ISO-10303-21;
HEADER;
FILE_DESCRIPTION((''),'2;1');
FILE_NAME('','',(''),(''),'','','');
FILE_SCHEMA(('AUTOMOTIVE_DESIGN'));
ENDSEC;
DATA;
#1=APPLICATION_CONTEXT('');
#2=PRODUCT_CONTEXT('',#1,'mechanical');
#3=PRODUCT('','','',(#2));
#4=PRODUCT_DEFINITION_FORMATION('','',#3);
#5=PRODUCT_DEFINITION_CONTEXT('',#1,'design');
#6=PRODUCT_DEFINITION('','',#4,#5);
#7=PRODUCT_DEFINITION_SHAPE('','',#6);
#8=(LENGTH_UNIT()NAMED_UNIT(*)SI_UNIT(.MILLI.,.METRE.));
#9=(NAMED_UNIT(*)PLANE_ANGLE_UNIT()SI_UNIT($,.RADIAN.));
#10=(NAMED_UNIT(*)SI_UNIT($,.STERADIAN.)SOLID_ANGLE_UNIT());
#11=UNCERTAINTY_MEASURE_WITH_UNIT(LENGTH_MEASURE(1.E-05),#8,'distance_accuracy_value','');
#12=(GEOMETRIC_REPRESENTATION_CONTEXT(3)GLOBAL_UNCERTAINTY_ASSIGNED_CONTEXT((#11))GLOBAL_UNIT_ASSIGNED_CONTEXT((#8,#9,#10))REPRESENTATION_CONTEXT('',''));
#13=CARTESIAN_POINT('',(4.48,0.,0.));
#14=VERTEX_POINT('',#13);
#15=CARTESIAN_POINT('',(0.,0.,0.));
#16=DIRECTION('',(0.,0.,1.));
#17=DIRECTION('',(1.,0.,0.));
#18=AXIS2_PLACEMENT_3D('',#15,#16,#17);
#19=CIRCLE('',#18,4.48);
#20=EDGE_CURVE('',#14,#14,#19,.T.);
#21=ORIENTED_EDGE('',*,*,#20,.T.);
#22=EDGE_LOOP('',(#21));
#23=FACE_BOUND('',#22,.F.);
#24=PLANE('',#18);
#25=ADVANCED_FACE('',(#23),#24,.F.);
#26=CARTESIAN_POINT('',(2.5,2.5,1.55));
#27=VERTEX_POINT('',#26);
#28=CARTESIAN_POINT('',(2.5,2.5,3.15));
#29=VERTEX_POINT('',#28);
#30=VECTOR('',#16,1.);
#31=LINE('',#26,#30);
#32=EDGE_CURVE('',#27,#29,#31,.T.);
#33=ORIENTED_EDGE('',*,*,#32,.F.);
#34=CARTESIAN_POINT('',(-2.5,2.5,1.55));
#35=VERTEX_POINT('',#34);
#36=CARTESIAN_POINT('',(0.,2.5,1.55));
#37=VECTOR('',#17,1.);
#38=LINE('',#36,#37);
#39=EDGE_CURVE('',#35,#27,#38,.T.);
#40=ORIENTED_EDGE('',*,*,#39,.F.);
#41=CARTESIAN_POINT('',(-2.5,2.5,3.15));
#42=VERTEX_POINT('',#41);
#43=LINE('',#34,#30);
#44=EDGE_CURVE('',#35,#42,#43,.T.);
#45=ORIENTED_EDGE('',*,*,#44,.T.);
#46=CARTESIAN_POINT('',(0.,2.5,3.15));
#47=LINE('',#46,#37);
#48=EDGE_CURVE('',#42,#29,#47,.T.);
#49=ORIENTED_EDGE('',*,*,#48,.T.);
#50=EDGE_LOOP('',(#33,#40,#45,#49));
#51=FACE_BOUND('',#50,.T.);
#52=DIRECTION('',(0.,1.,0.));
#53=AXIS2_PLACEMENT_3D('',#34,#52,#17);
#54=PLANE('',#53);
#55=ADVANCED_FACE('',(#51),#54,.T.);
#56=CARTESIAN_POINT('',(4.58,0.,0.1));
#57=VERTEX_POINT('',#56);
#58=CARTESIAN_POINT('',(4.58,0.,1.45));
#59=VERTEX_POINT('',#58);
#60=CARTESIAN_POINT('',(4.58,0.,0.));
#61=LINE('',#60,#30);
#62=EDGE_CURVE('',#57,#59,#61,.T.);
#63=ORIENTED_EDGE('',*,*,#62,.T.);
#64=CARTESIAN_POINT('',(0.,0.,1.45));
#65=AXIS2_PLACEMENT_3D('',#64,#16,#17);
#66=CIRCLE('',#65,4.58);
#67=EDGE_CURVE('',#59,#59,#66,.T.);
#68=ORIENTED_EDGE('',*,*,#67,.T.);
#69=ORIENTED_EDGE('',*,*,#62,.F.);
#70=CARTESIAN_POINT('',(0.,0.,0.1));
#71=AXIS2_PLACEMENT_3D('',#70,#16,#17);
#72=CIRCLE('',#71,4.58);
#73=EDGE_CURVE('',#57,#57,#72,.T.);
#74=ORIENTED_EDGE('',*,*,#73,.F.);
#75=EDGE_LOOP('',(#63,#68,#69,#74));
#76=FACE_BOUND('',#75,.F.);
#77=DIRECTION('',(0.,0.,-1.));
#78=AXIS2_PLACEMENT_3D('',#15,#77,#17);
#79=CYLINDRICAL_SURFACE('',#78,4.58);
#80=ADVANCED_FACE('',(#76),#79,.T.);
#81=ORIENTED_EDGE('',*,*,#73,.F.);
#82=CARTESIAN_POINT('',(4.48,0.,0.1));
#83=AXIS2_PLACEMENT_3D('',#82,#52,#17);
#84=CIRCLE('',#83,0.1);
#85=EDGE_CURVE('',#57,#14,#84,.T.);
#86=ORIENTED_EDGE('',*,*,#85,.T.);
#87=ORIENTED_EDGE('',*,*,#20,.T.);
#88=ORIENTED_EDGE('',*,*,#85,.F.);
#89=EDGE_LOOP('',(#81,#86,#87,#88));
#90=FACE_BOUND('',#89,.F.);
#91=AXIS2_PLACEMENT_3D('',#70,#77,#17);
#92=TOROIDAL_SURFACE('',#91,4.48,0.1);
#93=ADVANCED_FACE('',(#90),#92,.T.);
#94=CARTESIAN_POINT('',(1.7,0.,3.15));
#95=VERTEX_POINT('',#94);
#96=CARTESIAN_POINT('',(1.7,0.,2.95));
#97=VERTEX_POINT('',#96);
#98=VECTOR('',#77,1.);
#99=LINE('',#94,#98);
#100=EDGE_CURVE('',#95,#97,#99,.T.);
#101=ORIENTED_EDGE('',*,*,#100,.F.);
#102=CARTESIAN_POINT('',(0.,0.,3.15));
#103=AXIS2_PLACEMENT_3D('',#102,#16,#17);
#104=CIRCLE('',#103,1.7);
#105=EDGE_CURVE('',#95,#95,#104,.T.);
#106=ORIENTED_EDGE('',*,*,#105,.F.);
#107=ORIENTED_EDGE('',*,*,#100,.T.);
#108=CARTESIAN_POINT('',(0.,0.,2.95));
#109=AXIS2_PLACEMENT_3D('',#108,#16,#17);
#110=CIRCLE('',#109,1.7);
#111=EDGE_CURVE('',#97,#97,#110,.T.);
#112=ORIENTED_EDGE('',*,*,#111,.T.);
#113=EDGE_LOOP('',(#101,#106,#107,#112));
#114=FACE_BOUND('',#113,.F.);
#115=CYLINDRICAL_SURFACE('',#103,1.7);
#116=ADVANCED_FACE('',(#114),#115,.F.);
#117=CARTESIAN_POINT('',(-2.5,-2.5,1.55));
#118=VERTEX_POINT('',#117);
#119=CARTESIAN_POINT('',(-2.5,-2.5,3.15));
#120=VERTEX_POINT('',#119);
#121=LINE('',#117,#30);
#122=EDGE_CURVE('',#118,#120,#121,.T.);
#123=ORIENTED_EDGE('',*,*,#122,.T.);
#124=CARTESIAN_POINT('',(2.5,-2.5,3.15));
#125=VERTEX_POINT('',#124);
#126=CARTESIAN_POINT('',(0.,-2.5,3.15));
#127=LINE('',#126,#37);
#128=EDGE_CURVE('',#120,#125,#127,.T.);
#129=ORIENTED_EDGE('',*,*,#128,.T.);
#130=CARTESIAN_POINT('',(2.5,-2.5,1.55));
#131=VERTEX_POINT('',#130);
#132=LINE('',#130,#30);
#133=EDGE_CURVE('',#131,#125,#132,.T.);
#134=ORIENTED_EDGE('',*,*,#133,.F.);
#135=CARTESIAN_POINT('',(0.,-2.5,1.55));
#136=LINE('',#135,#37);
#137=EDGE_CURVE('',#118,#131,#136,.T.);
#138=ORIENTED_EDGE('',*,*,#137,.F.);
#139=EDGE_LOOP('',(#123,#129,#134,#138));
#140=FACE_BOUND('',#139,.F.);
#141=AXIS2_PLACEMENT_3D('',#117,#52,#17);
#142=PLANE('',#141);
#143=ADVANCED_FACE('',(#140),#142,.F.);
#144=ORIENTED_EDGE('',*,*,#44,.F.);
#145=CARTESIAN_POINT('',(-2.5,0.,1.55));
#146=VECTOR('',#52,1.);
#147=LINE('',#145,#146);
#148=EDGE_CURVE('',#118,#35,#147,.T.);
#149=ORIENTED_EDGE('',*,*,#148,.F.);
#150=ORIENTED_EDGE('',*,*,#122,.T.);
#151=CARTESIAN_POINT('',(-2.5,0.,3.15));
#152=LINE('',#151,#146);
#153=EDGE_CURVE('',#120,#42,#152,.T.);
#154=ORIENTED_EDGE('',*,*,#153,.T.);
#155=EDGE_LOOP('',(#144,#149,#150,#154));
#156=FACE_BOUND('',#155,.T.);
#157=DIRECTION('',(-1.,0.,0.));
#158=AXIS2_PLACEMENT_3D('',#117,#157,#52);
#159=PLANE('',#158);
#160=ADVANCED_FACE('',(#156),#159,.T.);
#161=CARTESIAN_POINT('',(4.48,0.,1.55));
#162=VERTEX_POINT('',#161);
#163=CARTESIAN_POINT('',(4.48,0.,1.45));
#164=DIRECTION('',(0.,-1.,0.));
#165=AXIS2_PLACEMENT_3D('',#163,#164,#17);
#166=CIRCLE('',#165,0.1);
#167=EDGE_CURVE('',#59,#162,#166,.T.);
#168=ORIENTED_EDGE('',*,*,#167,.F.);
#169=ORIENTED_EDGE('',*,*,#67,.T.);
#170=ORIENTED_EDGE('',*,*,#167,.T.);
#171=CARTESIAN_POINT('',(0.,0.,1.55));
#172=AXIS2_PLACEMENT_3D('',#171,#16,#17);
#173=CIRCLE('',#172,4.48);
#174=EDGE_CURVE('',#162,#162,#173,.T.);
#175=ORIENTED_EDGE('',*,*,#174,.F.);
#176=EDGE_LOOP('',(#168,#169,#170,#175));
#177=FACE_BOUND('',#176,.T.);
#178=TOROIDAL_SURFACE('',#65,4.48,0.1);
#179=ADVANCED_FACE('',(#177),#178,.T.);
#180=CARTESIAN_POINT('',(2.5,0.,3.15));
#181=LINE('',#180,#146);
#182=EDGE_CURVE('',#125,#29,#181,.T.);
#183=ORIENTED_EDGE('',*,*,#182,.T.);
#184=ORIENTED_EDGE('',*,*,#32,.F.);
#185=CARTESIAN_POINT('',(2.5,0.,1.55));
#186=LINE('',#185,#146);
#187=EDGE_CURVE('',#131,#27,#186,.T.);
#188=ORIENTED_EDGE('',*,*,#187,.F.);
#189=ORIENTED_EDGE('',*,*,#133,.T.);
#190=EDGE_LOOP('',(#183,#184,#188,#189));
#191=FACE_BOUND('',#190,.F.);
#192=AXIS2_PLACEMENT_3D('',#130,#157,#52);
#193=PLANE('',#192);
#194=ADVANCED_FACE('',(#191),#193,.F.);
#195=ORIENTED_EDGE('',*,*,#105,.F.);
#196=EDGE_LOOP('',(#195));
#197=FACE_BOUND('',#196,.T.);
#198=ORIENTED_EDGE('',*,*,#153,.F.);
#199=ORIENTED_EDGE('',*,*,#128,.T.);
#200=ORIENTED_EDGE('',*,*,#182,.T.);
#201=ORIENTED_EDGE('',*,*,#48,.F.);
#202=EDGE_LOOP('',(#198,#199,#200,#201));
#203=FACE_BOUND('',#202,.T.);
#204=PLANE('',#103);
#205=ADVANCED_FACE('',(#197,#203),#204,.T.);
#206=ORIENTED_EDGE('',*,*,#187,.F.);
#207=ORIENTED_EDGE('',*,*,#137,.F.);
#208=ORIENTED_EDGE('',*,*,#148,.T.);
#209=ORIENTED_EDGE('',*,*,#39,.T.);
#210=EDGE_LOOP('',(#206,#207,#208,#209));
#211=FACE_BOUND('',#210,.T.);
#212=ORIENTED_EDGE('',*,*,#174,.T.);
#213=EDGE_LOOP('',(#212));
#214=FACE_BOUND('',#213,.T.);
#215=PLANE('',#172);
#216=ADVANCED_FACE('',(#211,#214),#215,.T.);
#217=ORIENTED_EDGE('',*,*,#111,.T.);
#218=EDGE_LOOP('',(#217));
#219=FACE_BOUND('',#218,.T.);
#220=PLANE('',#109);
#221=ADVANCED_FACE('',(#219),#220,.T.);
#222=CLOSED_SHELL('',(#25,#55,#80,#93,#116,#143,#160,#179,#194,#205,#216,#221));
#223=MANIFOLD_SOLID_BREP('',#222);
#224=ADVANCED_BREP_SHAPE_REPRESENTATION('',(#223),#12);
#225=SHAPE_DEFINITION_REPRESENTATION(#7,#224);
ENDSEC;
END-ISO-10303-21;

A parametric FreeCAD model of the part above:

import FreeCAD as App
import Part
import Sketcher
from FreeCAD import Vector


def edges_at(feature, points):
    """Names of the edges that pass closest to the given points."""
    edges = feature.Shape.Edges
    near = lambda p: min(range(len(edges)), key=lambda i: edges[i].distToShape(Part.Vertex(*p))[0])
    return sorted({f"Edge{near(p) + 1}" for p in points})


def add_polygon(sketch, points):
    """Adds a closed chain of lines whose ends are joined by coincident constraints."""
    first, n = sketch.GeometryCount, len(points)
    for a, b in zip(points, points[1:] + points[:1]):
        sketch.addGeometry(Part.LineSegment(App.Vector(*a, 0), App.Vector(*b, 0)), False)
    for i in range(n):
        sketch.addConstraint(Sketcher.Constraint("Coincident", first + i, 2, first + (i + 1) % n, 1))

doc = App.newDocument("Part")
body = doc.addObject("PartDesign::Body", "Body")

# Sketch on XY plane
sketch1 = doc.addObject("Sketcher::SketchObject", "Sketch")
body.addObject(sketch1)
sketch1.AttachmentSupport = (doc.XY_Plane, [""])
sketch1.MapMode = "FlatFace"
sketch1.addGeometry(Part.Circle(Vector(0, 0, 0), Vector(0, 0, 1), 4.6), False)
sketch1.addConstraint(Sketcher.Constraint("Coincident", 0, 3, -1, 1))
sketch1.addConstraint(Sketcher.Constraint("Diameter", 0, 9.16))
pad1 = doc.addObject("PartDesign::Pad", "Pad")
body.addObject(pad1)
pad1.Profile = sketch1
pad1.Length = 1.55

# Sketch on XY plane
sketch2 = doc.addObject("Sketcher::SketchObject", "Sketch001")
body.addObject(sketch2)
sketch2.AttachmentSupport = (doc.XY_Plane, [""])
sketch2.MapMode = "FlatFace"
sketch2.AttachmentOffset = App.Placement(Vector(0, 0, 1.55), App.Rotation())
add_polygon(sketch2, [(-2, 2), (-2, -2), (2, -2), (2, 2)])  # lines 0-3
sketch2.addConstraint(Sketcher.Constraint("Vertical", 0))
sketch2.addConstraint(Sketcher.Constraint("Horizontal", 1))
sketch2.addConstraint(Sketcher.Constraint("Vertical", 2))
sketch2.addConstraint(Sketcher.Constraint("Horizontal", 3))
sketch2.addConstraint(Sketcher.Constraint("Symmetric", 0, 2, 2, 2, -1, 1))
sketch2.addConstraint(Sketcher.Constraint("Equal", 3, 0))
sketch2.addConstraint(Sketcher.Constraint("DistanceX", 1, 1, 1, 2, 5.0))
pad2 = doc.addObject("PartDesign::Pad", "Pad001")
body.addObject(pad2)
pad2.Profile = sketch2
pad2.Length = 1.6

# Sketch on XY plane
sketch3 = doc.addObject("Sketcher::SketchObject", "Sketch002")
body.addObject(sketch3)
sketch3.AttachmentSupport = (doc.XY_Plane, [""])
sketch3.MapMode = "FlatFace"
sketch3.AttachmentOffset = App.Placement(Vector(0, 0, 3.15), App.Rotation())
sketch3.addGeometry(Part.Circle(Vector(0, 0, 0), Vector(0, 0, 1), 1.7), False)
sketch3.addConstraint(Sketcher.Constraint("Coincident", 0, 3, -1, 1))
sketch3.addConstraint(Sketcher.Constraint("Diameter", 0, 3.4))
pocket1 = doc.addObject("PartDesign::Pocket", "Pocket")
body.addObject(pocket1)
pocket1.Profile = sketch3
pocket1.Length = 0.2
doc.recompute()

fillet = doc.addObject("PartDesign::Fillet", "Fillet")
body.addObject(fillet)
fillet.Base = (pocket1, edges_at(pocket1, [(-4.58, 0, 0), (-4.58, 0, 1.55)]))
fillet.Radius = 0.1

doc.recompute()
